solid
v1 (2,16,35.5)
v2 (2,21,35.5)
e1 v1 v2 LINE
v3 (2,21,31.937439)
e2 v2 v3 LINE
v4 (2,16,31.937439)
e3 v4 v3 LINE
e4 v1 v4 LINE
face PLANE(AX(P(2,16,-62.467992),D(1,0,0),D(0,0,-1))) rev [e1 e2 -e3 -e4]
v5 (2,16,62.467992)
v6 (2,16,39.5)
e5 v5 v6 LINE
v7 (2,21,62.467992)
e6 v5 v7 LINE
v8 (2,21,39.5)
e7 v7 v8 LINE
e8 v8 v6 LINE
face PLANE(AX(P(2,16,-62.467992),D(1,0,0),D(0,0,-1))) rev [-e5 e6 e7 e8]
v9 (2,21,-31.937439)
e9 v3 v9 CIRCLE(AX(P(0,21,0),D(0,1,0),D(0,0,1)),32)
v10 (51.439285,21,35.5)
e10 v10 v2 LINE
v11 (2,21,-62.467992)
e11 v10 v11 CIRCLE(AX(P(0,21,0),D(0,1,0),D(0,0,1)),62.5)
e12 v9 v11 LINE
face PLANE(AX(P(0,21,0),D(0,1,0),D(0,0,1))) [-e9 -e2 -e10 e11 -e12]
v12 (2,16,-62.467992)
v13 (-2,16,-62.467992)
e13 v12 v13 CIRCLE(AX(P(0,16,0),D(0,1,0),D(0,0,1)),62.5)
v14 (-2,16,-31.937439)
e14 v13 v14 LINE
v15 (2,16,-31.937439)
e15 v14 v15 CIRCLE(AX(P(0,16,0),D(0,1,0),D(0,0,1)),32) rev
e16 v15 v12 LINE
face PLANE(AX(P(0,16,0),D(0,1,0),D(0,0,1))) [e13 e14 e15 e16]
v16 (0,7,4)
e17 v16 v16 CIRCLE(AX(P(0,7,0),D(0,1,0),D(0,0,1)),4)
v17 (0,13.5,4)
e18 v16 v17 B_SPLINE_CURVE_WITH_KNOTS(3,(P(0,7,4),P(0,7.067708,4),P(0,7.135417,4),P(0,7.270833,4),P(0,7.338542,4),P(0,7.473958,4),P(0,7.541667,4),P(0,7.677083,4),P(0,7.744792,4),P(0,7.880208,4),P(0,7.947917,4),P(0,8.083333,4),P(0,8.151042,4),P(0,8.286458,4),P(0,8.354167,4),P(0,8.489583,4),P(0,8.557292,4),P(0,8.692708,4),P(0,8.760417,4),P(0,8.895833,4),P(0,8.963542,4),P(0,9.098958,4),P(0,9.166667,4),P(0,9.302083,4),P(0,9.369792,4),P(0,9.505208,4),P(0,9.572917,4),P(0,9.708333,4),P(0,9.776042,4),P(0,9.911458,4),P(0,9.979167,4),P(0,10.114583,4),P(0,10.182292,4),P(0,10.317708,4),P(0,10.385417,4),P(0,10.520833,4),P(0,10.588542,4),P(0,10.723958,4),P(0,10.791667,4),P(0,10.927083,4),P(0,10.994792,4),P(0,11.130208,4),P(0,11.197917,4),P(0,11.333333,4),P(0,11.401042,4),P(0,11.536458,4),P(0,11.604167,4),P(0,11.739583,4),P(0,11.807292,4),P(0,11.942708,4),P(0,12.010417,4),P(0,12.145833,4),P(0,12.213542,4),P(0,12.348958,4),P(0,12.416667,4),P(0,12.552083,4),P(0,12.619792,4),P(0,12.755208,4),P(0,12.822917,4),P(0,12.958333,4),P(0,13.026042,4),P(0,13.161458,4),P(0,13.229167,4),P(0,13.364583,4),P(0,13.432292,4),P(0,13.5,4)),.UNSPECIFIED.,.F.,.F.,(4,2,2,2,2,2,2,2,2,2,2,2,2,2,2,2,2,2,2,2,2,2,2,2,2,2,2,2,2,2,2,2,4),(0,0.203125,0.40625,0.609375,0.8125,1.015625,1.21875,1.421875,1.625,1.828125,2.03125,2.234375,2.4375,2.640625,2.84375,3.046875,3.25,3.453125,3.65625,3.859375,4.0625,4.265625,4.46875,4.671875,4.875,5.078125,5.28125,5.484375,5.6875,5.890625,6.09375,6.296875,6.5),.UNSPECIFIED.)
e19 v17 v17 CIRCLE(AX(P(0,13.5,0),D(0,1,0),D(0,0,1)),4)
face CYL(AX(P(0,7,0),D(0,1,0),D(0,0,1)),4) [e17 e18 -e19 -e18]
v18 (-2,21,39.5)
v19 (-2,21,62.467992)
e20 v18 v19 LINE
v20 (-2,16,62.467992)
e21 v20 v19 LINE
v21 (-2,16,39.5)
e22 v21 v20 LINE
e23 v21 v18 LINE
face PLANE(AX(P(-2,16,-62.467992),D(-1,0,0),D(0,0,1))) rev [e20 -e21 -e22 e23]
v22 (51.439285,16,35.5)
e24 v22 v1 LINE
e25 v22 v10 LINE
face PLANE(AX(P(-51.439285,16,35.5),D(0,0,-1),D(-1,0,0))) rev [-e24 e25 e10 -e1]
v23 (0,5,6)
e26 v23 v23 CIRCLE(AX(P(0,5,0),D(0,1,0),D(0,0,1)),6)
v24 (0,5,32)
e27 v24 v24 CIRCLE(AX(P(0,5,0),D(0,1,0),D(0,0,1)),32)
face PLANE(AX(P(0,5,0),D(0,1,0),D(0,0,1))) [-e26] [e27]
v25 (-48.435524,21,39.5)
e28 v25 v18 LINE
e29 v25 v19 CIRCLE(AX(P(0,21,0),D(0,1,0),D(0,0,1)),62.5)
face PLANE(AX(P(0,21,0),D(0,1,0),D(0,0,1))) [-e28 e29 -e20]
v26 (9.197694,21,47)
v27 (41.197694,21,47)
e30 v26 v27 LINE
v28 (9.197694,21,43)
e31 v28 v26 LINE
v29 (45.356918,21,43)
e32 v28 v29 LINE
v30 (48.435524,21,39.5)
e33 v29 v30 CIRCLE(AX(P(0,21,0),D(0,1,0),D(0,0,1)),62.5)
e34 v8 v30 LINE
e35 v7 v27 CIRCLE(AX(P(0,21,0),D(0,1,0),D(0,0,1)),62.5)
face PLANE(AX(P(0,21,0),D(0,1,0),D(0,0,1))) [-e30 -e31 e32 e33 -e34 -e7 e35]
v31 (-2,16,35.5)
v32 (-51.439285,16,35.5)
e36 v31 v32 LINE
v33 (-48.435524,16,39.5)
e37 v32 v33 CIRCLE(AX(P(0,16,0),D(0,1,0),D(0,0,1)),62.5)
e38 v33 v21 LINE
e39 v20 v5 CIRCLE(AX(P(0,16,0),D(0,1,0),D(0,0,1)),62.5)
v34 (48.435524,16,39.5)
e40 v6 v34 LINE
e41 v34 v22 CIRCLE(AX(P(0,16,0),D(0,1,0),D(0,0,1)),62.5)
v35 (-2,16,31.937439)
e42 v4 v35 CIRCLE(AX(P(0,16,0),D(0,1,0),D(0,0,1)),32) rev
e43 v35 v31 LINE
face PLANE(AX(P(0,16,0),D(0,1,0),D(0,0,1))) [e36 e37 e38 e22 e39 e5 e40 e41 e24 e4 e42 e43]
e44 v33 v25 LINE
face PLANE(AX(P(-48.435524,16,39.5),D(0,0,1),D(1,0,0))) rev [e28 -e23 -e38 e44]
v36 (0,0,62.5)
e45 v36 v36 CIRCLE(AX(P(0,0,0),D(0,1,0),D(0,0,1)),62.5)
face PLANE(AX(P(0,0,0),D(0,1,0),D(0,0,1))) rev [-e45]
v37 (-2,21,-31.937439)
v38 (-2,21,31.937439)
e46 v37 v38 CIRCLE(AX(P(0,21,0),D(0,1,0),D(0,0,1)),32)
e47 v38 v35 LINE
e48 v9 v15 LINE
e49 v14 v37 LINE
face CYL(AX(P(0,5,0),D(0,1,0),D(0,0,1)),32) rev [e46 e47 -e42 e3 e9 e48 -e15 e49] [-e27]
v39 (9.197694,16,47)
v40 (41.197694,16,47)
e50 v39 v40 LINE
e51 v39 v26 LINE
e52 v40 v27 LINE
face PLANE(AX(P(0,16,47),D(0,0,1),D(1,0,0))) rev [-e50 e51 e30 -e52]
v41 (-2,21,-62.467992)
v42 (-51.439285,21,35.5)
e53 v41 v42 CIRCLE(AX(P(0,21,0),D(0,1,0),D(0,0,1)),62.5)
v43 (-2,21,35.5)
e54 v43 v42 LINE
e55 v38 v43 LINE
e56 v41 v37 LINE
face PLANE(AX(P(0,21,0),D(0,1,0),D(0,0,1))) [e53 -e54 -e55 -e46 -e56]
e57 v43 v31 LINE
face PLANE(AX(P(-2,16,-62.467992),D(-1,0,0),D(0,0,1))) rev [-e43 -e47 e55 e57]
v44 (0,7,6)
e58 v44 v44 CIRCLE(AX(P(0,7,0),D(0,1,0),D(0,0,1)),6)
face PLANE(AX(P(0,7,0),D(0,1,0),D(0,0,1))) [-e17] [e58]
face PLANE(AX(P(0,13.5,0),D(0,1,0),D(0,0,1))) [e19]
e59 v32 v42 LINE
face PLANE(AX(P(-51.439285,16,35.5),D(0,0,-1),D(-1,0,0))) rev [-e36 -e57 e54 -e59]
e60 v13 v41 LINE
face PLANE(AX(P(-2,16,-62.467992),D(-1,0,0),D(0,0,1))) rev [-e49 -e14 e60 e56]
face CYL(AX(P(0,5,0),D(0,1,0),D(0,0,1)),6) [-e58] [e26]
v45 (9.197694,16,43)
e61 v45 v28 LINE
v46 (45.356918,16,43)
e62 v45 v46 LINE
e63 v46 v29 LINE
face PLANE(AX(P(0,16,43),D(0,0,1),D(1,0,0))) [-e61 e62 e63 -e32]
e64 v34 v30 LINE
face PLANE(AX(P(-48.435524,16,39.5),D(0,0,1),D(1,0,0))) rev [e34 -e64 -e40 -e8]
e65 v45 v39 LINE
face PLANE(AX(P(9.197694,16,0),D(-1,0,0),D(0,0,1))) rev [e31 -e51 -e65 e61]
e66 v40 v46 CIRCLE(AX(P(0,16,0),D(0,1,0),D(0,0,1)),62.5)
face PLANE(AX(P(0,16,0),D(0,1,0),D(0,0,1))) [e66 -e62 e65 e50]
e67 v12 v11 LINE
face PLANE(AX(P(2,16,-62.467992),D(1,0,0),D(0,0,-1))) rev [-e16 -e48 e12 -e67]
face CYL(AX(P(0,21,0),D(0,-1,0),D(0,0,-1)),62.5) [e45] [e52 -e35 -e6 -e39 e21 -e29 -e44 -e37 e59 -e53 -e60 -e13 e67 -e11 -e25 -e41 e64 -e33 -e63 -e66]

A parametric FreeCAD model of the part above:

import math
import FreeCAD as App
import Part
import Sketcher

V = App.Vector
Q = App.Units.Quantity

doc = App.newDocument("Part")
body = doc.addObject("PartDesign::Body", "Body")

# Sketch on XZ plane
sketch1 = body.newObject("Sketcher::SketchObject", "Sketch")
sketch1.AttachmentSupport = (doc.getObject("XZ_Plane"), [""])
sketch1.MapMode = "FlatFace"
sketch1.addGeometry(Part.Circle(V(0, 0, 0), V(0, 0, 1), 62), False)
sketch1.addConstraint([
    Sketcher.Constraint("Coincident", 0, 3, -1, 1),
    Sketcher.Constraint("Diameter", 0, Q("125 mm")),
])
pad1 = body.newObject("PartDesign::Pad", "Pad")
pad1.Profile = sketch1
pad1.Length = 21
pad1.Reversed = True

# Sketch on XZ plane
sketch2 = body.newObject("Sketcher::SketchObject", "Sketch001")
sketch2.AttachmentSupport = (doc.getObject("XZ_Plane"), [""])
sketch2.MapMode = "FlatFace"
sketch2.AttachmentOffset = App.Placement(V(0, 0, -21), App.Rotation())
sketch2.addGeometry([
    Part.Circle(V(0, 0, 0), V(0, 0, 1), 32),
    Part.Circle(V(0, 0, 0), V(0, 0, 1), 6),
], False)
sketch2.addConstraint([
    Sketcher.Constraint("Coincident", 0, 3, -1, 1),
    Sketcher.Constraint("Coincident", 1, 3, -1, 1),
    Sketcher.Constraint("Diameter", 0, Q("64 mm")),
    Sketcher.Constraint("Diameter", 1, Q("12 mm")),
])
pocket1 = body.newObject("PartDesign::Pocket", "Pocket")
pocket1.Profile = sketch2
pocket1.Length = 16
pocket1.Reversed = True

# Sketch on XZ plane
sketch3 = body.newObject("Sketcher::SketchObject", "Sketch002")
sketch3.AttachmentSupport = (doc.getObject("XZ_Plane"), [""])
sketch3.MapMode = "FlatFace"
sketch3.AttachmentOffset = App.Placement(V(0, 0, -21), App.Rotation())
sketch3.addGeometry([
    Part.Circle(V(0, 0, 0), V(0, 0, 1), 6),
    Part.Circle(V(0, 0, 0), V(0, 0, 1), 4),
], False)
sketch3.addConstraint([
    Sketcher.Constraint("Coincident", 0, 3, -1, 1),
    Sketcher.Constraint("Coincident", 1, 3, -1, 1),
    Sketcher.Constraint("Diameter", 0, Q("12 mm")),
    Sketcher.Constraint("Diameter", 1, Q("8 mm")),
])
pocket2 = body.newObject("PartDesign::Pocket", "Pocket001")
pocket2.Profile = sketch3
pocket2.Length = 14
pocket2.Reversed = True

# Sketch on XZ plane
sketch4 = body.newObject("Sketcher::SketchObject", "Sketch003")
sketch4.AttachmentSupport = (doc.getObject("XZ_Plane"), [""])
sketch4.MapMode = "FlatFace"
sketch4.AttachmentOffset = App.Placement(V(0, 0, -21), App.Rotation())
sketch4.addGeometry(Part.Circle(V(0, 0, 0), V(0, 0, 1), 4), False)
sketch4.addConstraint([
    Sketcher.Constraint("Coincident", 0, 3, -1, 1),
    Sketcher.Constraint("Diameter", 0, Q("8 mm")),
])
pocket3 = body.newObject("PartDesign::Pocket", "Pocket002")
pocket3.Profile = sketch4
pocket3.Length = 7.5
pocket3.Reversed = True

# Sketch on XZ plane
sketch5 = body.newObject("Sketcher::SketchObject", "Sketch004")
sketch5.AttachmentSupport = (doc.getObject("XZ_Plane"), [""])
sketch5.MapMode = "FlatFace"
sketch5.AttachmentOffset = App.Placement(V(0, 0, -16), App.Rotation())
sketch5.addGeometry([
    Part.LineSegment(V(2, 62.5, 0), V(2, -62.5, 0)),
    Part.ArcOfCircle(Part.Circle(V(0, 0, 0), V(0, 0, 1), 62.5), math.radians(-91.83), math.radians(-88.17)),
    Part.LineSegment(V(-2, -62.5, 0), V(-2, 62.5, 0)),
    Part.ArcOfCircle(Part.Circle(V(0, 0, 0), V(0, 0, 1), 62.5), math.radians(88.17), math.radians(91.83)),
], False)
sketch5.addConstraint([
    Sketcher.Constraint("Coincident", 0, 2, 1, 2),
    Sketcher.Constraint("Coincident", 1, 1, 2, 1),
    Sketcher.Constraint("Coincident", 2, 2, 3, 2),
    Sketcher.Constraint("Coincident", 3, 1, 0, 1),
    Sketcher.Constraint("Vertical", 0),
    Sketcher.Constraint("Vertical", 2),
    Sketcher.Constraint("Coincident", 1, 3, -1, 1),
    Sketcher.Constraint("Coincident", 3, 3, -1, 1),
    Sketcher.Constraint("Equal", 1, 3),
    Sketcher.Constraint("Horizontal", 0, 2, 1, 1),
    Sketcher.Constraint("Radius", 1, Q("62.5 mm")),
    Sketcher.Constraint("DistanceX", -1, 1, 0, 2, Q("2 mm")),
])
pocket4 = body.newObject("PartDesign::Pocket", "Pocket003")
pocket4.Profile = sketch5
pocket4.Length = 5

# Sketch on XZ plane
sketch6 = body.newObject("Sketcher::SketchObject", "Sketch005")
sketch6.AttachmentSupport = (doc.getObject("XZ_Plane"), [""])
sketch6.MapMode = "FlatFace"
sketch6.AttachmentOffset = App.Placement(V(0, 0, -16), App.Rotation())
sketch6.addGeometry([
    Part.LineSegment(V(-48, 40, 0), V(48, 40, 0)),
    Part.ArcOfCircle(Part.Circle(V(0, 0, 0), V(0, 0, 1), 62), math.radians(34.61), math.radians(39.2)),
    Part.LineSegment(V(51, 36, 0), V(-51, 36, 0)),
    Part.ArcOfCircle(Part.Circle(V(0, 0, 0), V(0, 0, 1), 62), math.radians(140.8), math.radians(145.39)),
], False)
sketch6.addConstraint([
    Sketcher.Constraint("Coincident", 0, 2, 1, 2),
    Sketcher.Constraint("Coincident", 1, 1, 2, 1),
    Sketcher.Constraint("Coincident", 2, 2, 3, 2),
    Sketcher.Constraint("Coincident", 3, 1, 0, 1),
    Sketcher.Constraint("Horizontal", 0),
    Sketcher.Constraint("Horizontal", 2),
    Sketcher.Constraint("Coincident", 1, 3, -1, 1),
    Sketcher.Constraint("Coincident", 3, 3, -1, 1),
    Sketcher.Constraint("Equal", 1, 3),
    Sketcher.Constraint("Radius", 1, Q("62.5 mm")),
    Sketcher.Constraint("DistanceY", 1, 1, 0, 2, Q("4 mm")),
    Sketcher.Constraint("DistanceY", -1, 1, 0, 2, Q("39.5 mm")),
])
pocket5 = body.newObject("PartDesign::Pocket", "Pocket004")
pocket5.Profile = sketch6
pocket5.Length = 5

# Sketch on XZ plane
sketch7 = body.newObject("Sketcher::SketchObject", "Sketch006")
sketch7.AttachmentSupport = (doc.getObject("XZ_Plane"), [""])
sketch7.MapMode = "FlatFace"
sketch7.AttachmentOffset = App.Placement(V(0, 0, -16), App.Rotation())
sketch7.addGeometry([
    Part.ArcOfCircle(Part.Circle(V(0, 0, 0), V(0, 0, 1), 62.5), math.radians(43.47), math.radians(48.76)),
    Part.LineSegment(V(45.4, 43, 0), V(9.2, 43, 0)),
    Part.LineSegment(V(9.2, 43, 0), V(9.2, 47, 0)),
    Part.LineSegment(V(9.2, 47, 0), V(41.2, 47, 0)),
], False)
sketch7.addConstraint([
    Sketcher.Constraint("Coincident", 0, 1, 1, 1),
    Sketcher.Constraint("Coincident", 1, 2, 2, 1),
    Sketcher.Constraint("Coincident", 2, 2, 3, 1),
    Sketcher.Constraint("Coincident", 3, 2, 0, 2),
    Sketcher.Constraint("Horizontal", 1),
    Sketcher.Constraint("Vertical", 2),
    Sketcher.Constraint("Horizontal", 3),
    Sketcher.Constraint("Coincident", 0, 3, -1, 1),
    Sketcher.Constraint("Radius", 0, Q("62.5 mm")),
    Sketcher.Constraint("DistanceX", 3, 1, 3, 2, Q("32 mm")),
    Sketcher.Constraint("DistanceY", 2, 1, 2, 2, Q("4 mm")),
    Sketcher.Constraint("DistanceY", -1, 1, 0, 1, Q("43 mm")),
])
pocket6 = body.newObject("PartDesign::Pocket", "Pocket005")
pocket6.Profile = sketch7
pocket6.Length = 5

doc.recompute()
